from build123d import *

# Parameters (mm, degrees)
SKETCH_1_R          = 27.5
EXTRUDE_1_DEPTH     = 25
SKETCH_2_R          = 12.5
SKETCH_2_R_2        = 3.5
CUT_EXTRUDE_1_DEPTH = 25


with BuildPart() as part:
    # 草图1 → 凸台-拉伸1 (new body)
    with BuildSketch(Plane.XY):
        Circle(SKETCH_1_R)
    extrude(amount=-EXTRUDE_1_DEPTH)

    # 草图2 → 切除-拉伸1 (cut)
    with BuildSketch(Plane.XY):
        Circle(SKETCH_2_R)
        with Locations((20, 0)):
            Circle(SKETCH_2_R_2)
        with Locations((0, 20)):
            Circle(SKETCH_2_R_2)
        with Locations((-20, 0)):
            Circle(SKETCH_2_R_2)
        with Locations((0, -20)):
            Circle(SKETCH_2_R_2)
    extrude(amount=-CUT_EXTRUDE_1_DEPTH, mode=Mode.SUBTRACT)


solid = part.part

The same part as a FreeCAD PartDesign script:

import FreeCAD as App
import Part
import Sketcher
from FreeCAD import Vector

doc = App.newDocument("Part")
body = doc.addObject("PartDesign::Body", "Body")

# Sketch on XY plane
sketch1 = body.newObject("Sketcher::SketchObject", "Sketch")
sketch1.AttachmentSupport = (doc.getObject("XY_Plane"), [""])
sketch1.MapMode = "FlatFace"
sketch1.addGeometry(Part.Circle(Vector(0, 0, 0), Vector(0, 0, 1), 28), False)
sketch1.addConstraint(Sketcher.Constraint("Coincident", 0, 3, -1, 1))
sketch1.addConstraint(Sketcher.Constraint("Diameter", 0, 55.0))
pad1 = body.newObject("PartDesign::Pad", "Pad")
pad1.Profile = sketch1
pad1.Length = 25
pad1.Reversed = True

# Sketch on XY plane
sketch2 = body.newObject("Sketcher::SketchObject", "Sketch001")
sketch2.AttachmentSupport = (doc.getObject("XY_Plane"), [""])
sketch2.MapMode = "FlatFace"
sketch2.addGeometry(Part.Circle(Vector(0, 0, 0), Vector(0, 0, 1), 12.5), False)
sketch2.addGeometry(Part.Circle(Vector(20, 0, 0), Vector(0, 0, 1), 3.5), False)
sketch2.addGeometry(Part.Circle(Vector(0, 20, 0), Vector(0, 0, 1), 3.5), False)
sketch2.addGeometry(Part.Circle(Vector(-20, 0, 0), Vector(0, 0, 1), 3.5), False)
sketch2.addGeometry(Part.Circle(Vector(0, -20, 0), Vector(0, 0, 1), 3.5), False)
sketch2.addConstraint(Sketcher.Constraint("Coincident", 0, 3, -1, 1))
sketch2.addConstraint(Sketcher.Constraint("Equal", 1, 2))
sketch2.addConstraint(Sketcher.Constraint("Equal", 2, 3))
sketch2.addConstraint(Sketcher.Constraint("Equal", 3, 4))
sketch2.addConstraint(Sketcher.Constraint("Symmetric", 1, 3, 3, 3, -1, 1))
sketch2.addConstraint(Sketcher.Constraint("Symmetric", 2, 3, 4, 3, -1, 1))
sketch2.addConstraint(Sketcher.Constraint("PointOnObject", 1, 3, -1))
sketch2.addConstraint(Sketcher.Constraint("PointOnObject", 2, 3, -2))
sketch2.addConstraint(Sketcher.Constraint("Diameter", 0, 25.0))
sketch2.addConstraint(Sketcher.Constraint("Diameter", 1, 7.0))
sketch2.addConstraint(Sketcher.Constraint("DistanceX", -1, 1, 1, 3, 20.0))
sketch2.addConstraint(Sketcher.Constraint("DistanceY", -1, 1, 2, 3, 20.0))
pocket1 = body.newObject("PartDesign::Pocket", "Pocket")
pocket1.Profile = sketch2
pocket1.Length = 25

doc.recompute()
